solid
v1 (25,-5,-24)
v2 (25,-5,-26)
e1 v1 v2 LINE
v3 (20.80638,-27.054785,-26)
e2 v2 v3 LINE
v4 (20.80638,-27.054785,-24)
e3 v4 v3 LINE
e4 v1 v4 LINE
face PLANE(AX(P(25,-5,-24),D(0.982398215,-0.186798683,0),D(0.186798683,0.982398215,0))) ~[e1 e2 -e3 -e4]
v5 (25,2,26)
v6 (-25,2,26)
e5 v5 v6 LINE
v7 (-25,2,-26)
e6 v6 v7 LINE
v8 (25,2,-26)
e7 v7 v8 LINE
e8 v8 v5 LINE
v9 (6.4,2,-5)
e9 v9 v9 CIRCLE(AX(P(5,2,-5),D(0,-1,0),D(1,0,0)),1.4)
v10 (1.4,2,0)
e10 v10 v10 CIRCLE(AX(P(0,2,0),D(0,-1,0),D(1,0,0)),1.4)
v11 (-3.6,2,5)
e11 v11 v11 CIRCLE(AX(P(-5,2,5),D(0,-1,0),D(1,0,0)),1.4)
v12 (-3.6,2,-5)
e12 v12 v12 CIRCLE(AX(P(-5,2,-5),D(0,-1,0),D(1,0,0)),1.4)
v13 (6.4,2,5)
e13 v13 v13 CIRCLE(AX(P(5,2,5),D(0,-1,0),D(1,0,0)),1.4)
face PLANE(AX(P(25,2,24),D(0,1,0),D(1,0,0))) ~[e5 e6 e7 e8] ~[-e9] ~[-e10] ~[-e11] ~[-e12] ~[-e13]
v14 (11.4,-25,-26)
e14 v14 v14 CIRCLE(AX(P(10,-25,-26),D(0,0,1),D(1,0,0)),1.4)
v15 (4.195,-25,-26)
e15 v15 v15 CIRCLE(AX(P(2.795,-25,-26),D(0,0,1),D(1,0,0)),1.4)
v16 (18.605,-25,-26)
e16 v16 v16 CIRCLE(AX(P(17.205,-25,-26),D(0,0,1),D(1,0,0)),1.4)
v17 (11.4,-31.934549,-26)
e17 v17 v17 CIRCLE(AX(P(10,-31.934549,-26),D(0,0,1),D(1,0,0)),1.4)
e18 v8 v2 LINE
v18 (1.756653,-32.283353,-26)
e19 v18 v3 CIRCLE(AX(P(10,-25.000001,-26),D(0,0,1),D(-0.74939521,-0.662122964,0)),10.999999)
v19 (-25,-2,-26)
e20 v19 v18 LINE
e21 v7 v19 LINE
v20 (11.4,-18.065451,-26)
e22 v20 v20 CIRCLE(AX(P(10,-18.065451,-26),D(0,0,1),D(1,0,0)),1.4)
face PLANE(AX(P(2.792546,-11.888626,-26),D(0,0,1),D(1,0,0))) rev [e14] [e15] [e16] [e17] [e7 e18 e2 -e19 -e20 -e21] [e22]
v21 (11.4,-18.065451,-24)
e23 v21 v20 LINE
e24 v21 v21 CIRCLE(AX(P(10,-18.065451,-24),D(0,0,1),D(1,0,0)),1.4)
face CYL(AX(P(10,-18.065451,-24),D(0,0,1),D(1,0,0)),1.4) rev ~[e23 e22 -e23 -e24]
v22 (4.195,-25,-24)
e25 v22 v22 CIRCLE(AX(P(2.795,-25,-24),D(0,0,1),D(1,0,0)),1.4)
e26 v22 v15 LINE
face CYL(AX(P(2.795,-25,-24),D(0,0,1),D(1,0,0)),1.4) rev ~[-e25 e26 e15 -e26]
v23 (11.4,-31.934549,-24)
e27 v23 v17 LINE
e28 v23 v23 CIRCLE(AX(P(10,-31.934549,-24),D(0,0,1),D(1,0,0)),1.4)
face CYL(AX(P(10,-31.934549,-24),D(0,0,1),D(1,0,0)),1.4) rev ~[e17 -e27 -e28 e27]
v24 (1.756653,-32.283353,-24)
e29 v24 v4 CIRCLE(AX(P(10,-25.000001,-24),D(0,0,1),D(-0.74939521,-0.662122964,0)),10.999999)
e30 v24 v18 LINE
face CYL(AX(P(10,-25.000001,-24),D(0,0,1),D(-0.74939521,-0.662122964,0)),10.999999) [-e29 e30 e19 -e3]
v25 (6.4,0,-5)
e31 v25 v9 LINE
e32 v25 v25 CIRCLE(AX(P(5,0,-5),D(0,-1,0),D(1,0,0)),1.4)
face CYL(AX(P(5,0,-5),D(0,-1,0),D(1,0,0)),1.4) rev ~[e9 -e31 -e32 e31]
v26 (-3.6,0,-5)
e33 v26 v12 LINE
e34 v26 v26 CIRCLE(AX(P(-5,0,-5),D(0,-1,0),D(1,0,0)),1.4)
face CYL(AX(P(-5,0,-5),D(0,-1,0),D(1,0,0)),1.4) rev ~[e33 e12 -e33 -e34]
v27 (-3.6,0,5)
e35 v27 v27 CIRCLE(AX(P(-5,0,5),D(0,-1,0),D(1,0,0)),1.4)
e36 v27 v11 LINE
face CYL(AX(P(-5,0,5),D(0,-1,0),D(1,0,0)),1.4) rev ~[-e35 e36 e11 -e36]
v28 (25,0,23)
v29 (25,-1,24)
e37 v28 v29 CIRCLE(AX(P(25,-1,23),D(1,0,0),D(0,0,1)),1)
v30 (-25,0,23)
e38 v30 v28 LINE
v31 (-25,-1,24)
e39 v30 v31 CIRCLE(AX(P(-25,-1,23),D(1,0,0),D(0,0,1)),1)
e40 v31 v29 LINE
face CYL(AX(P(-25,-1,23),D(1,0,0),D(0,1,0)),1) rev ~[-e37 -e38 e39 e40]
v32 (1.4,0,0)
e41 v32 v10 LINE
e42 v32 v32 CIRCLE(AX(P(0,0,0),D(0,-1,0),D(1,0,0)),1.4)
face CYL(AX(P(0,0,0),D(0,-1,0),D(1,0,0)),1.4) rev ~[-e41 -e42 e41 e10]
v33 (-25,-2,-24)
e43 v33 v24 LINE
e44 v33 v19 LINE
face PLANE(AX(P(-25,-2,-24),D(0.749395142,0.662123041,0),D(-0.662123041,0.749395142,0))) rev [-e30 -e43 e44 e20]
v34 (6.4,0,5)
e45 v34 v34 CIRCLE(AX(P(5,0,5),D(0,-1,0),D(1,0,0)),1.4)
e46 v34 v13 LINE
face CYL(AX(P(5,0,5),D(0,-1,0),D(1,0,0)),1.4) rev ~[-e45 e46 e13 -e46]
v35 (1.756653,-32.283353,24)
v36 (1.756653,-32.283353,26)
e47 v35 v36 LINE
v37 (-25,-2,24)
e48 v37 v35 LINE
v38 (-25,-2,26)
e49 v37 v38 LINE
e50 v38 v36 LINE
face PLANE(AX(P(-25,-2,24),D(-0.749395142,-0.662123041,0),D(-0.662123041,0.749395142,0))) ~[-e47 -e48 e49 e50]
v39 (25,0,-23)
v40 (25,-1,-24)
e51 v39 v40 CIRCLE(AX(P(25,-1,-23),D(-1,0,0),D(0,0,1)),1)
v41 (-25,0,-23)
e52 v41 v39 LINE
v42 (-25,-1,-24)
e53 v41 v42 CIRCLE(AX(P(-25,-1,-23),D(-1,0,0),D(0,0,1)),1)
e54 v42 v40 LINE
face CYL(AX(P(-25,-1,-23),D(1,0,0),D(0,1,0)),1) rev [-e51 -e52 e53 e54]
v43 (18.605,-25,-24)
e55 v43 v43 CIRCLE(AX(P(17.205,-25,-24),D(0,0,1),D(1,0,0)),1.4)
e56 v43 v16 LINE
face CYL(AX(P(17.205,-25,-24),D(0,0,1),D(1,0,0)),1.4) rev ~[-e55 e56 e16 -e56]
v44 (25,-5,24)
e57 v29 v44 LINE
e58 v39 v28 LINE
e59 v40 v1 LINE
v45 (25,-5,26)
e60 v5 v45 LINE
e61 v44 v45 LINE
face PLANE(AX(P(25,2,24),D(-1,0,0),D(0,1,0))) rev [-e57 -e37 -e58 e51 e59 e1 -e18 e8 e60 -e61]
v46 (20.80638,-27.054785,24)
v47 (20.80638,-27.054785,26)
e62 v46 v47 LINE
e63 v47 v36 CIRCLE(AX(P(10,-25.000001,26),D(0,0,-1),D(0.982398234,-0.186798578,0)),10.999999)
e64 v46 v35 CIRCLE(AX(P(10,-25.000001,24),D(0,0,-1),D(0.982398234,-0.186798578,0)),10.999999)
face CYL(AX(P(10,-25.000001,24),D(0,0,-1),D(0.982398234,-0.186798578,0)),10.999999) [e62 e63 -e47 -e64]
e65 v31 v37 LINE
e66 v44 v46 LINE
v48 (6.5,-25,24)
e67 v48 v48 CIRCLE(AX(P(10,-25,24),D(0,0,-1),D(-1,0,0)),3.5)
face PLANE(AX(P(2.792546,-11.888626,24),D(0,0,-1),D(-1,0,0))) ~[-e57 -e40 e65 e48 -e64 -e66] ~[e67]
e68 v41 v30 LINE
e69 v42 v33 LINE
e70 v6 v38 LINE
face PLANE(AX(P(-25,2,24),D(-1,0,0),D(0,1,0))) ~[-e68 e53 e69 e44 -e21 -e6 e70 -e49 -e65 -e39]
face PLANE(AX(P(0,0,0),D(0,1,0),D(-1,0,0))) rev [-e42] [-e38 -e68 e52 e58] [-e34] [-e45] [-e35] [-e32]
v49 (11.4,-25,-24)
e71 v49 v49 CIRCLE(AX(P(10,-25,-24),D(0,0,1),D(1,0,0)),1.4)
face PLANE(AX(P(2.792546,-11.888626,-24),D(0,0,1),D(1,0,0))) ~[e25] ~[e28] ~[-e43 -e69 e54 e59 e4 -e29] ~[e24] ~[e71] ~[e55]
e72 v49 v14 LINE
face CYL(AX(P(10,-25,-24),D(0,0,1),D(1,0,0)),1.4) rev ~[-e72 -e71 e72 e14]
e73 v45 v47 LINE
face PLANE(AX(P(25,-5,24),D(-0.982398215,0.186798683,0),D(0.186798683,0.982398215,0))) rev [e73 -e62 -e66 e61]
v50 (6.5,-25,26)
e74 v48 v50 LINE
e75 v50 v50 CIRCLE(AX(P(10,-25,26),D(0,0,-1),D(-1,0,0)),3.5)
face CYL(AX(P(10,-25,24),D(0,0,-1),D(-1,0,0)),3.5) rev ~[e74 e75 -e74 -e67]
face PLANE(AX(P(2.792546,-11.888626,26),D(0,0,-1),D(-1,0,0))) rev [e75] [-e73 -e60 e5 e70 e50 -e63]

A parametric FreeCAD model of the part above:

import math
import FreeCAD as App
import Part
import Sketcher
from FreeCAD import Vector
Q = App.Units.Quantity


def edges_at(feature, points):
    """Names of the edges that pass closest to the given points."""
    edges = feature.Shape.Edges
    near = lambda p: min(range(len(edges)), key=lambda i: edges[i].distToShape(Part.Vertex(*p))[0])
    return sorted({f"Edge{near(p) + 1}" for p in points})


def add_polygon(sketch, points):
    """Adds a closed chain of lines whose ends are joined by coincident constraints."""
    first, n = sketch.GeometryCount, len(points)
    for a, b in zip(points, points[1:] + points[:1]):
        sketch.addGeometry(Part.LineSegment(App.Vector(*a, 0), App.Vector(*b, 0)), False)
    for i in range(n):
        sketch.addConstraint(Sketcher.Constraint("Coincident", first + i, 2, first + (i + 1) % n, 1))

doc = App.newDocument("Part")
params = doc.addObject("Spreadsheet::Sheet", "Params")
for row, (alias, value) in enumerate([
    ("sketch1_diameter", "2.8 mm"),
    ("sketch1_width", "50 mm"),
    ("sketch1_height", "48 mm"),
    ("pad1_length", "2 mm"),
    ("sketch2_radius", "10.999999 mm"),
    ("sketch2_diameter", "2.8 mm"),
    ("sketch2_width", "50 mm"),
    ("sketch2_height", "4 mm"),
    ("sketch2_height2", "7 mm"),
    ("pad2_length", "2 mm"),
    ("sketch3_diameter", "7 mm"),
    ("sketch3_radius", "10.999999 mm"),
    ("sketch3_width", "50 mm"),
    ("sketch3_height", "7 mm"),
    ("sketch3_height2", "4 mm"),
    ("pad3_length", "2 mm"),
    ("fillet_radius", "1 mm"),
    ("fillet2_radius", "1 mm"),
], start=1):
    params.set(f"A{row}", alias)
    params.set(f"B{row}", "=" + value)
    params.setAlias(f"B{row}", alias)

body = doc.addObject("PartDesign::Body", "Body")

sketch1 = body.newObject("Sketcher::SketchObject", "Sketch")
sketch1.AttachmentSupport = (doc.getObject("XZ_Plane"), [""])
sketch1.MapMode = "FlatFace"
add_polygon(sketch1, [(-25, 24), (-25, -24), (25, -24), (25, 24)])
sketch1.addGeometry(Part.Circle(Vector(-5, -5, 0), Vector(0, 0, 1), 1.4), False)
sketch1.addGeometry(Part.Circle(Vector(5, -5, 0), Vector(0, 0, 1), 1.4), False)
sketch1.addGeometry(Part.Circle(Vector(-5, 5, 0), Vector(0, 0, 1), 1.4), False)
sketch1.addGeometry(Part.Circle(Vector(0, 0, 0), Vector(0, 0, 1), 1.4), False)
sketch1.addGeometry(Part.Circle(Vector(5, 5, 0), Vector(0, 0, 1), 1.4), False)
sketch1.addConstraint([
    Sketcher.Constraint("Vertical", 0),
    Sketcher.Constraint("Horizontal", 1),
    Sketcher.Constraint("Vertical", 2),
    Sketcher.Constraint("Horizontal", 3),
    Sketcher.Constraint("Coincident", 7, 3, -1, 1),
    Sketcher.Constraint("Equal", 4, 5),
    Sketcher.Constraint("Equal", 5, 6),
    Sketcher.Constraint("Equal", 6, 7),
    Sketcher.Constraint("Equal", 7, 8),
    Sketcher.Constraint("Symmetric", 5, 3, 6, 3, -1, 1),
    Sketcher.Constraint("Symmetric", 4, 3, 8, 3, -1, 1),
    Sketcher.Constraint("Symmetric", 0, 2, 2, 2, -1, 1),
    Sketcher.Constraint("Symmetric", 4, 3, 5, 3, -2),
    Sketcher.Constraint("Diameter", 4, Q("2.8 mm")),
    Sketcher.Constraint("DistanceX", 1, 1, 1, 2, Q("50 mm")),
    Sketcher.Constraint("DistanceY", 0, 2, 0, 1, Q("48 mm")),
    Sketcher.Constraint("DistanceX", 4, 3, -1, 1, Q("5 mm")),
    Sketcher.Constraint("DistanceY", 4, 3, -1, 1, Q("5 mm")),
])
sketch1.setExpression("Constraints[17]", "Params.sketch1_diameter")
sketch1.setExpression("Constraints[18]", "Params.sketch1_width")
sketch1.setExpression("Constraints[19]", "Params.sketch1_height")
pad1 = body.newObject("PartDesign::Pad", "Pad")
pad1.Profile = sketch1
pad1.setExpression("Length", "Params.pad1_length")

sketch2 = body.newObject("Sketcher::SketchObject", "Sketch001")
sketch2.AttachmentSupport = (doc.getObject("XY_Plane"), [""])
sketch2.MapMode = "FlatFace"
sketch2.AttachmentOffset = App.Placement(Vector(0, 0, -24), App.Rotation())
sketch2.addGeometry([
    Part.LineSegment(Vector(-25, -2, 0), Vector(-25, 2, 0)),
    Part.LineSegment(Vector(-25, 2, 0), Vector(1.8, 32.3, 0)),
    Part.ArcOfCircle(Part.Circle(Vector(10, 25, 0), Vector(0, 0, 1), 11), math.radians(11), math.radians(139)),
    Part.LineSegment(Vector(20.8, 27.1, 0), Vector(25, 5, 0)),
    Part.LineSegment(Vector(25, 5, 0), Vector(25, -2, 0)),
    Part.LineSegment(Vector(25, -2, 0), Vector(-25, -2, 0)),
    Part.Circle(Vector(10, 31.9, 0), Vector(0, 0, 1), 1.4),
    Part.Circle(Vector(17.2, 25, 0), Vector(0, 0, 1), 1.4),
    Part.Circle(Vector(10, 25, 0), Vector(0, 0, 1), 1.4),
    Part.Circle(Vector(10, 18.1, 0), Vector(0, 0, 1), 1.4),
    Part.Circle(Vector(2.8, 25, 0), Vector(0, 0, 1), 1.4),
], False)
sketch2.addConstraint([
    Sketcher.Constraint("Coincident", 0, 2, 1, 1),
    Sketcher.Constraint("Tangent", 1, 2, 2, 2),
    Sketcher.Constraint("Tangent", 2, 1, 3, 1),
    Sketcher.Constraint("Coincident", 3, 2, 4, 1),
    Sketcher.Constraint("Coincident", 4, 2, 5, 1),
    Sketcher.Constraint("Coincident", 5, 2, 0, 1),
    Sketcher.Constraint("Vertical", 0),
    Sketcher.Constraint("Vertical", 4),
    Sketcher.Constraint("Horizontal", 5),
    Sketcher.Constraint("Coincident", 8, 3, 2, 3),
    Sketcher.Constraint("Equal", 6, 7),
    Sketcher.Constraint("Equal", 7, 8),
    Sketcher.Constraint("Equal", 8, 9),
    Sketcher.Constraint("Equal", 9, 10),
    Sketcher.Constraint("Symmetric", 0, 2, 4, 2, -1, 1),
    Sketcher.Constraint("Horizontal", 2, 3, 7, 3),
    Sketcher.Constraint("Horizontal", 8, 3, 10, 3),
    Sketcher.Constraint("Vertical", 2, 3, 6, 3),
    Sketcher.Constraint("Vertical", 8, 3, 9, 3),
    Sketcher.Constraint("Radius", 2, Q("10.999999 mm")),
    Sketcher.Constraint("Diameter", 6, Q("2.8 mm")),
    Sketcher.Constraint("DistanceX", 5, 2, 5, 1, Q("50 mm")),
    Sketcher.Constraint("DistanceY", 0, 1, 0, 2, Q("4 mm")),
    Sketcher.Constraint("DistanceY", 4, 2, 4, 1, Q("7 mm")),
    Sketcher.Constraint("DistanceX", -1, 1, 2, 3, Q("10 mm")),
    Sketcher.Constraint("DistanceY", -1, 1, 2, 3, Q("25.000001 mm")),
    Sketcher.Constraint("DistanceX", 10, 3, 7, 3, Q("14.41 mm")),
    Sketcher.Constraint("DistanceX", -1, 1, 7, 3, Q("17.205 mm")),
    Sketcher.Constraint("DistanceY", 9, 3, 6, 3, Q("13.869098 mm")),
    Sketcher.Constraint("DistanceY", 9, 3, 1, 2, Q("14.217902 mm")),
])
sketch2.setExpression("Constraints[19]", "Params.sketch2_radius")
sketch2.setExpression("Constraints[20]", "Params.sketch2_diameter")
sketch2.setExpression("Constraints[21]", "Params.sketch2_width")
sketch2.setExpression("Constraints[22]", "Params.sketch2_height")
sketch2.setExpression("Constraints[23]", "Params.sketch2_height2")
pad2 = body.newObject("PartDesign::Pad", "Pad001")
pad2.Profile = sketch2
pad2.setExpression("Length", "Params.pad2_length")
pad2.Reversed = True

sketch3 = body.newObject("Sketcher::SketchObject", "Sketch002")
sketch3.AttachmentSupport = (doc.getObject("XY_Plane"), [""])
sketch3.MapMode = "FlatFace"
sketch3.AttachmentOffset = App.Placement(Vector(0, 0, 24), App.Rotation())
sketch3.addGeometry([
    Part.LineSegment(Vector(-25, -2, 0), Vector(25, -2, 0)),
    Part.LineSegment(Vector(25, -2, 0), Vector(25, 5, 0)),
    Part.LineSegment(Vector(25, 5, 0), Vector(20.8, 27.1, 0)),
    Part.ArcOfCircle(Part.Circle(Vector(10, 25, 0), Vector(0, 0, 1), 11), math.radians(11), math.radians(139)),
    Part.LineSegment(Vector(1.8, 32.3, 0), Vector(-25, 2, 0)),
    Part.LineSegment(Vector(-25, 2, 0), Vector(-25, -2, 0)),
    Part.Circle(Vector(10, 25, 0), Vector(0, 0, 1), 3.5),
], False)
sketch3.addConstraint([
    Sketcher.Constraint("Coincident", 0, 2, 1, 1),
    Sketcher.Constraint("Coincident", 1, 2, 2, 1),
    Sketcher.Constraint("Tangent", 2, 2, 3, 1),
    Sketcher.Constraint("Tangent", 3, 2, 4, 1),
    Sketcher.Constraint("Coincident", 4, 2, 5, 1),
    Sketcher.Constraint("Coincident", 5, 2, 0, 1),
    Sketcher.Constraint("Horizontal", 0),
    Sketcher.Constraint("Vertical", 1),
    Sketcher.Constraint("Vertical", 5),
    Sketcher.Constraint("Coincident", 6, 3, 3, 3),
    Sketcher.Constraint("Symmetric", 0, 2, 4, 2, -1, 1),
    Sketcher.Constraint("Diameter", 6, Q("7 mm")),
    Sketcher.Constraint("Radius", 3, Q("10.999999 mm")),
    Sketcher.Constraint("DistanceX", 0, 1, 0, 2, Q("50 mm")),
    Sketcher.Constraint("DistanceY", 1, 1, 1, 2, Q("7 mm")),
    Sketcher.Constraint("DistanceY", 5, 2, 5, 1, Q("4 mm")),
    Sketcher.Constraint("DistanceX", -1, 1, 3, 3, Q("10 mm")),
    Sketcher.Constraint("DistanceY", -1, 1, 3, 3, Q("25.000001 mm")),
])
sketch3.setExpression("Constraints[11]", "Params.sketch3_diameter")
sketch3.setExpression("Constraints[12]", "Params.sketch3_radius")
sketch3.setExpression("Constraints[13]", "Params.sketch3_width")
sketch3.setExpression("Constraints[14]", "Params.sketch3_height")
sketch3.setExpression("Constraints[15]", "Params.sketch3_height2")
pad3 = body.newObject("PartDesign::Pad", "Pad002")
pad3.Profile = sketch3
pad3.setExpression("Length", "Params.pad3_length")
doc.recompute()

fillet = body.newObject("PartDesign::Fillet", "Fillet")
fillet.Base = (pad3, edges_at(pad3, [(0, 0, 24)]))
fillet.setExpression("Radius", "Params.fillet_radius")
doc.recompute()

fillet2 = body.newObject("PartDesign::Fillet", "Fillet001")
fillet2.Base = (fillet, edges_at(fillet, [(0, 0, -24)]))
fillet2.setExpression("Radius", "Params.fillet2_radius")
body2 = doc.addObject("PartDesign::Body", "Body001")
doc.recompute()

mirroring = doc.addObject("Part::Mirroring", "Mirroring")
mirroring.Source = body
mirroring.Base = Vector(0, 0, 0)
mirroring.Normal = Vector(0, 1, 0)
body2.BaseFeature = mirroring
doc.recompute()
body.Visibility = False
mirroring.Visibility = False

doc.recompute()
